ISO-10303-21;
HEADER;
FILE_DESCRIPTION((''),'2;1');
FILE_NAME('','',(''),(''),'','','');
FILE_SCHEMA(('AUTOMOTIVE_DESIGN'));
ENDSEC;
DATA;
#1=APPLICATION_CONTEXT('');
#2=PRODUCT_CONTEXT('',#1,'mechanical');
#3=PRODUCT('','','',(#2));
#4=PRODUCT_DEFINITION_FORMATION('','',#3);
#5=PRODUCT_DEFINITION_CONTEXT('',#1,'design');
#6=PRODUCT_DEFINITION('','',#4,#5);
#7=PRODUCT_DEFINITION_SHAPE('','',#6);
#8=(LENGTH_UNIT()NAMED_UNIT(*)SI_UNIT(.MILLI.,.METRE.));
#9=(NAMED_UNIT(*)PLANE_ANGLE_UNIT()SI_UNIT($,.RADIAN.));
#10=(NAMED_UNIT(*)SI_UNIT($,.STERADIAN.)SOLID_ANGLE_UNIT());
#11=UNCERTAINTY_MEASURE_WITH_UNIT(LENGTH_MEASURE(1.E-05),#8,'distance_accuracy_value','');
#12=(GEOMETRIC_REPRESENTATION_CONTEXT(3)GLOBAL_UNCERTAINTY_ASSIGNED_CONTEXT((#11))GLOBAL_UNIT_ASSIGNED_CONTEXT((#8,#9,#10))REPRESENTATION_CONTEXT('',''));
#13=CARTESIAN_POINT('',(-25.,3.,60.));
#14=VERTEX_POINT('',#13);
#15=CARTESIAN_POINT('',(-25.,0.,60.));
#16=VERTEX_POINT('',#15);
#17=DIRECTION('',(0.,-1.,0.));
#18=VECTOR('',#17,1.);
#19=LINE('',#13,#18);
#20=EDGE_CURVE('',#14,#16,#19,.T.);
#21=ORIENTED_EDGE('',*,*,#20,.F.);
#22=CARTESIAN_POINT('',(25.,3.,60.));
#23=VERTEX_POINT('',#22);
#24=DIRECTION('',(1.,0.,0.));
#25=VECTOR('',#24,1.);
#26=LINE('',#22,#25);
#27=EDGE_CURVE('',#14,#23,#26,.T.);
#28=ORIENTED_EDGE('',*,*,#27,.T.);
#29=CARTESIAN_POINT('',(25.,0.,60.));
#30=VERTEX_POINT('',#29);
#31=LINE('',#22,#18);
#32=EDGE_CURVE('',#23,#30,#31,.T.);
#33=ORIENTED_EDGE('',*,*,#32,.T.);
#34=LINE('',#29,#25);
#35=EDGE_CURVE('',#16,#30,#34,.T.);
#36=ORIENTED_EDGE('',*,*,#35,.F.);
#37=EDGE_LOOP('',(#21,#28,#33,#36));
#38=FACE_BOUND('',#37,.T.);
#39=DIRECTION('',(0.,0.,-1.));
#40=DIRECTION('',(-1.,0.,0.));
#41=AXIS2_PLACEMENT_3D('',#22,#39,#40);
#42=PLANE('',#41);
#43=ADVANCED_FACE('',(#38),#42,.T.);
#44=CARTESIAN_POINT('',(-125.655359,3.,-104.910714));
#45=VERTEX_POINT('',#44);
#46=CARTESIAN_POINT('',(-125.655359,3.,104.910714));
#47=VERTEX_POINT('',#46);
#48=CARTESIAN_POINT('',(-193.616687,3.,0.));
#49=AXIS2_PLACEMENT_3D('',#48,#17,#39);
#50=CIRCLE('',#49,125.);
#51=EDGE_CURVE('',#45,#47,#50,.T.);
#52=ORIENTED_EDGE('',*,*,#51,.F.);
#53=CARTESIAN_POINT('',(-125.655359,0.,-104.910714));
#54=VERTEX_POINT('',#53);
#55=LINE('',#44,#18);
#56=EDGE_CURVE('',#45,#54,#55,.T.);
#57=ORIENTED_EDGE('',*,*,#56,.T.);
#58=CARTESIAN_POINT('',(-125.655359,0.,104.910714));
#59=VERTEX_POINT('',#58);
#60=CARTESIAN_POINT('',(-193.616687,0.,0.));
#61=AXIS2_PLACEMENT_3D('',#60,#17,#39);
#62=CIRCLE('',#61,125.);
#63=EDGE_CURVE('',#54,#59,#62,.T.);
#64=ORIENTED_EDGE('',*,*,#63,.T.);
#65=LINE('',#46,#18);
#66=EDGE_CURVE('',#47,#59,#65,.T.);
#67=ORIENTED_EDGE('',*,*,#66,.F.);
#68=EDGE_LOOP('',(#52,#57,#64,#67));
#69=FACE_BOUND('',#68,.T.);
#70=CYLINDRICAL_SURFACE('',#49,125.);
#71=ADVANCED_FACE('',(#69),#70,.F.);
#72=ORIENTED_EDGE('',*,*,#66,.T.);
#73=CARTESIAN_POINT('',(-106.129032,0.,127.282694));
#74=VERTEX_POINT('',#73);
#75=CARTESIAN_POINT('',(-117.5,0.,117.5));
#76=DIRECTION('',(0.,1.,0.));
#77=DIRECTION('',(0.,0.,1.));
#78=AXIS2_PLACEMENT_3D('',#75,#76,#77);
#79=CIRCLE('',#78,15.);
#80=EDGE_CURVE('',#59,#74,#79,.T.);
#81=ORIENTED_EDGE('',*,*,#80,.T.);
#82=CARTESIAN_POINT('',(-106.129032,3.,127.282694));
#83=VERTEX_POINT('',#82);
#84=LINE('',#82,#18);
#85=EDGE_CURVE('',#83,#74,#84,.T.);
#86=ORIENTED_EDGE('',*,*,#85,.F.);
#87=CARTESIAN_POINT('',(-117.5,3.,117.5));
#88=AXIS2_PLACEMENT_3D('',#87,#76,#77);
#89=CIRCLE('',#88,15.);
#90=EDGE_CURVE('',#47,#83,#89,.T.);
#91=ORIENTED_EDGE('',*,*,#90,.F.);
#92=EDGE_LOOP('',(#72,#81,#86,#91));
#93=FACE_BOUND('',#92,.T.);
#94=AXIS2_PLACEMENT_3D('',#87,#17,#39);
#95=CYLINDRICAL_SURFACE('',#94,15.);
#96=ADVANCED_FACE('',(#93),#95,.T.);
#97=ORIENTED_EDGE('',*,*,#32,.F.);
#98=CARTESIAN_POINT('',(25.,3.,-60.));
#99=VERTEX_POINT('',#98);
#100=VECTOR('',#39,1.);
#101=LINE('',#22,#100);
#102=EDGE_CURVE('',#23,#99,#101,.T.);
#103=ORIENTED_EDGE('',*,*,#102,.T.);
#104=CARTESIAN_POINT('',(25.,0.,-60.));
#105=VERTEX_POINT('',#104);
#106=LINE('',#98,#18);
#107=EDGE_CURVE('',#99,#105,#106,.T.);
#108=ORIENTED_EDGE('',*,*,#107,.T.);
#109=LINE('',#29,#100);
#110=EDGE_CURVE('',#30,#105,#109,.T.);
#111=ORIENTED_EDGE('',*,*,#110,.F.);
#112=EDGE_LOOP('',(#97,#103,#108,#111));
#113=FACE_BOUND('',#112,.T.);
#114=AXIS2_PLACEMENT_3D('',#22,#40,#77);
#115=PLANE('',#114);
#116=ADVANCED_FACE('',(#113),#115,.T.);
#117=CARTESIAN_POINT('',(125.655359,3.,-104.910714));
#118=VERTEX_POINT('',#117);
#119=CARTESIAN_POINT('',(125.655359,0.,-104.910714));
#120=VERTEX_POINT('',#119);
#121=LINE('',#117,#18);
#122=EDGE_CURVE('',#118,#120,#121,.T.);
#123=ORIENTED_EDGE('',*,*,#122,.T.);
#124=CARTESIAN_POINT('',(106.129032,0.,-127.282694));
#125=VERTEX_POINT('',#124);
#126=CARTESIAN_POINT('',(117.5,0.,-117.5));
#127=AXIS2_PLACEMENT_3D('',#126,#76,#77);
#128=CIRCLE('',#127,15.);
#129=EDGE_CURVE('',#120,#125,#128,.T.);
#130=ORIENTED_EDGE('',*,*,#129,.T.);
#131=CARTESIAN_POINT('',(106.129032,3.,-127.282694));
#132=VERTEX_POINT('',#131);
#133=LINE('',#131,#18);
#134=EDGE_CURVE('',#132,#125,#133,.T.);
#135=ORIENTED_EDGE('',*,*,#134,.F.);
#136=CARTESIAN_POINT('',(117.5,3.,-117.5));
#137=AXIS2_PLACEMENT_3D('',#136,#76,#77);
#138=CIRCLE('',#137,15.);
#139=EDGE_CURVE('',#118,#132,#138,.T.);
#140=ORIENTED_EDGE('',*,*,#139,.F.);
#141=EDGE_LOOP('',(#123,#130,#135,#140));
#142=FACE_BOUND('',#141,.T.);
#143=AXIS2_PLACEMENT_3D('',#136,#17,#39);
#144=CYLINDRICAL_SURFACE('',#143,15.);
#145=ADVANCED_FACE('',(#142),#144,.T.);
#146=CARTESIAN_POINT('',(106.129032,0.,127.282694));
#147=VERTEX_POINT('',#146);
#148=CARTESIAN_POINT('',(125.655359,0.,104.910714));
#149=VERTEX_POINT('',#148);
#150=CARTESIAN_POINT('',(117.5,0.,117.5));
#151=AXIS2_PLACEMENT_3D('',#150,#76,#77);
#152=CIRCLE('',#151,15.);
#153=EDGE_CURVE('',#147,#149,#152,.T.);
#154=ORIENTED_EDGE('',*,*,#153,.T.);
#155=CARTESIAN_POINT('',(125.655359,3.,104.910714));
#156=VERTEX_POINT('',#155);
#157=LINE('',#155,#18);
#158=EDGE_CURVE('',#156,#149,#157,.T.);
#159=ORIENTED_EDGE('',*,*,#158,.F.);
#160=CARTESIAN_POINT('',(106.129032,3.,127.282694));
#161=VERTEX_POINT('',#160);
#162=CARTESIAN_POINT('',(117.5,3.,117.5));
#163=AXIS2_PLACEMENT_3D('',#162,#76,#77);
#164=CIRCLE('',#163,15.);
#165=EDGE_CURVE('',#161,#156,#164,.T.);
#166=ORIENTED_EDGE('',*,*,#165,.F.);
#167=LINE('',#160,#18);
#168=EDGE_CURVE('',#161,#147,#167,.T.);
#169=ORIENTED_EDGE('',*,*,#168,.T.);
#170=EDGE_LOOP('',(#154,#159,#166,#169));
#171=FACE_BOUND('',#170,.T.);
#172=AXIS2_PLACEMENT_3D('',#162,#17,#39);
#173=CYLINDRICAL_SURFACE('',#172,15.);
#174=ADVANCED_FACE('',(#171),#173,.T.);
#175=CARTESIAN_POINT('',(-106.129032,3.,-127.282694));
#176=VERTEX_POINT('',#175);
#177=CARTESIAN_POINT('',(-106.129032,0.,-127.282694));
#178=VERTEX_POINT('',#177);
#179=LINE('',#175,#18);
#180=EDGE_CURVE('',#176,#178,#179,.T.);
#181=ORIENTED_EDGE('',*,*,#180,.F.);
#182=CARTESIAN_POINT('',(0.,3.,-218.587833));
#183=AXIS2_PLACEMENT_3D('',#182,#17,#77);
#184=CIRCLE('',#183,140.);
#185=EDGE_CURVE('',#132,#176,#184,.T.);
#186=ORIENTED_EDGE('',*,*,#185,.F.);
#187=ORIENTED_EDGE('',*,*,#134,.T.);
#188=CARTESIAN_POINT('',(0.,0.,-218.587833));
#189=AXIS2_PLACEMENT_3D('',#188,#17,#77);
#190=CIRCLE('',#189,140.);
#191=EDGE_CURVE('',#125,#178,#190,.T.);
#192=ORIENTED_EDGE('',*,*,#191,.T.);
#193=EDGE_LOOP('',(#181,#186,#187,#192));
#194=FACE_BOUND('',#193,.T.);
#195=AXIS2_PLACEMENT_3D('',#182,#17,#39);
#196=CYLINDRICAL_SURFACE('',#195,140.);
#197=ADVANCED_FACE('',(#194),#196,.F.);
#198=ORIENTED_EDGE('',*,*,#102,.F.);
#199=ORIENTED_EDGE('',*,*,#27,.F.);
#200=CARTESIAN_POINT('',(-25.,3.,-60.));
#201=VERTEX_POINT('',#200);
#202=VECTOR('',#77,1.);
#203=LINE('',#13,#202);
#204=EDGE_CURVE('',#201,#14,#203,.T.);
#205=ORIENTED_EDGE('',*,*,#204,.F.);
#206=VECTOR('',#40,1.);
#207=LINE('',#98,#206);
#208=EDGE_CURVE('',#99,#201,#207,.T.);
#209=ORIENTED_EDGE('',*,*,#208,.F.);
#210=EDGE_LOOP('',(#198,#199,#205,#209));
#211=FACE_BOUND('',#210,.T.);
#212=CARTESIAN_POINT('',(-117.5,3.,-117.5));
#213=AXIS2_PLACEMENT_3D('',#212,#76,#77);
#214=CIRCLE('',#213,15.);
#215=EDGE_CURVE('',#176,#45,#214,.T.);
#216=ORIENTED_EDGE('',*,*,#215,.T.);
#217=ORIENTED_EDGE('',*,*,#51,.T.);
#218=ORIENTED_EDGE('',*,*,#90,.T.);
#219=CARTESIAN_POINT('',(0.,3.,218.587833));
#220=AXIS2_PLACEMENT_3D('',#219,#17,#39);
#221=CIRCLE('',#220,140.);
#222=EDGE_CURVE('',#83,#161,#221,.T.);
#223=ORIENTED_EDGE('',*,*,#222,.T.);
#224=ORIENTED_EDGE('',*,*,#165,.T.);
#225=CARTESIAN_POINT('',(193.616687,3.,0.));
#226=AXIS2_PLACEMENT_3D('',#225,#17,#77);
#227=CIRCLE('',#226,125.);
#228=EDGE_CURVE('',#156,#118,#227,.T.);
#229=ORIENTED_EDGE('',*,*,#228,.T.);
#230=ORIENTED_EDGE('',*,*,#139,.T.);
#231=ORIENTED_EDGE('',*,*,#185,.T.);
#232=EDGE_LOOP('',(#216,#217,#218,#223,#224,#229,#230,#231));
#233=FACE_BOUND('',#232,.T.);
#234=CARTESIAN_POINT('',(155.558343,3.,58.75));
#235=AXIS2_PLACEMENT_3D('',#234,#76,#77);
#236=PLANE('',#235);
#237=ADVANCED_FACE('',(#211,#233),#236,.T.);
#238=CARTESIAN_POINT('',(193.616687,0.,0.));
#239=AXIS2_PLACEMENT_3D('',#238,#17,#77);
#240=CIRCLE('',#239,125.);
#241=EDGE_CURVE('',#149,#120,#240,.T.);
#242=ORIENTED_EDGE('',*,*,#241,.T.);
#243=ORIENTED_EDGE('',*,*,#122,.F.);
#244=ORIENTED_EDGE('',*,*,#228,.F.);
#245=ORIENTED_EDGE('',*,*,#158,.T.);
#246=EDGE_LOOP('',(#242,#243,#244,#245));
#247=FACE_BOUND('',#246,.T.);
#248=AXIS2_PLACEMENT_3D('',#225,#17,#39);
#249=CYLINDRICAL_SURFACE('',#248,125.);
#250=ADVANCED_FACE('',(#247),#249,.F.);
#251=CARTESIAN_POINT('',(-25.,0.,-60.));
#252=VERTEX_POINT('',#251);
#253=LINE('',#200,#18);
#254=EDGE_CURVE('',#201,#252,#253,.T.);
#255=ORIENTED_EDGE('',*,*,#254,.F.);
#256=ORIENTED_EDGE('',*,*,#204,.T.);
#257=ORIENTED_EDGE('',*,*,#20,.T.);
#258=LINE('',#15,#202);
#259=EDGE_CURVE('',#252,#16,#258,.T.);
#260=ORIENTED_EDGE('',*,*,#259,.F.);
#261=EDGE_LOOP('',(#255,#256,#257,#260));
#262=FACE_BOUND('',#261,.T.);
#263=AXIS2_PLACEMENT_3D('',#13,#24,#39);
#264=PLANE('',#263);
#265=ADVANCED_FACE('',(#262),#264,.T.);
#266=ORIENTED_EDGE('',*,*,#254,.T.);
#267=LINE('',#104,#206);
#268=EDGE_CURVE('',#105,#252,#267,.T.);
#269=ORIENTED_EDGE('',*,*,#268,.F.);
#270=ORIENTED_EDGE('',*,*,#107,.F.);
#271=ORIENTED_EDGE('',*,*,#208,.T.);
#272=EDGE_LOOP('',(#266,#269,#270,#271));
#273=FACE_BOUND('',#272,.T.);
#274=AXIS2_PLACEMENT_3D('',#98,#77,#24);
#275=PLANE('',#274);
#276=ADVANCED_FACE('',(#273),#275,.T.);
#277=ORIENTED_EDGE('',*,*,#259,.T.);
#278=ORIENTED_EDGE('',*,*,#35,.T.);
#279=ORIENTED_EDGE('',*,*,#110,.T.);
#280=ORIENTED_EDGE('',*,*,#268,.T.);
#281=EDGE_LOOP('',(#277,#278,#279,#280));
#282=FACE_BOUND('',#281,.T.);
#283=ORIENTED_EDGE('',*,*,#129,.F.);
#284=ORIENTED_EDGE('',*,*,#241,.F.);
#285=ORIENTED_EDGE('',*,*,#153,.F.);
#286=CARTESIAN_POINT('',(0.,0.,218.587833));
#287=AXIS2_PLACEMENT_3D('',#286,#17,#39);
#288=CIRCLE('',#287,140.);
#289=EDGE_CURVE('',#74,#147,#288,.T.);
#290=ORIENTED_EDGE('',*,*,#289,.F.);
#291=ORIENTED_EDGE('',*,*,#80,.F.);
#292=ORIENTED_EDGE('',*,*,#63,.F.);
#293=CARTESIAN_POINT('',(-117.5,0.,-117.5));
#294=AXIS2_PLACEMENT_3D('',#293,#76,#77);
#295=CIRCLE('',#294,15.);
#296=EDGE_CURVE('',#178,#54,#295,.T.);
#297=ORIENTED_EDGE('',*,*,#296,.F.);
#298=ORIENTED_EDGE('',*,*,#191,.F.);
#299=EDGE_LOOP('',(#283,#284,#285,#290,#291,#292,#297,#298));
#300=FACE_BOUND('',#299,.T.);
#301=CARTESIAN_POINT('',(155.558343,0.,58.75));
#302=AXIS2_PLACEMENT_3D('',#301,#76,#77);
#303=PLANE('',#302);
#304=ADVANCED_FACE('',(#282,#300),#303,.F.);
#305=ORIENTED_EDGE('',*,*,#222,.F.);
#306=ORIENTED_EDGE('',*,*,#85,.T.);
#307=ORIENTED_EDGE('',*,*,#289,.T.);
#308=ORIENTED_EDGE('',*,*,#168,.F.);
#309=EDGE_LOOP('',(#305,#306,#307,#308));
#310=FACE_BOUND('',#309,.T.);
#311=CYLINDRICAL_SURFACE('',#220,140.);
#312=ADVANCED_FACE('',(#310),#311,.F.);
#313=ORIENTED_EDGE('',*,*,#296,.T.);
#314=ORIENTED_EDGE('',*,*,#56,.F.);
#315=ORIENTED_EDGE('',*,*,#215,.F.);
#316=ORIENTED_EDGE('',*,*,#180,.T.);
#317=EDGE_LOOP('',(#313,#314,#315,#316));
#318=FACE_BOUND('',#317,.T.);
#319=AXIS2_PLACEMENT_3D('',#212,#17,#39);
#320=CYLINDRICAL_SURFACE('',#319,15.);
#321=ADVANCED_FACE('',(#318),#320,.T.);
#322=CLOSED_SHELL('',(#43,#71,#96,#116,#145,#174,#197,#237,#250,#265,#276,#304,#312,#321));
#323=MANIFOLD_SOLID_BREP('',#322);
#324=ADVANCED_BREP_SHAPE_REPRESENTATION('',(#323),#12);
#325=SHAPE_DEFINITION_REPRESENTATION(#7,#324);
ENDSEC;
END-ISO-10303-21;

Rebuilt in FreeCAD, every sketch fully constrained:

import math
import FreeCAD as App
import Part
import Sketcher
from FreeCAD import Vector

doc = App.newDocument("Part")
params = doc.addObject("Spreadsheet::Sheet", "Params")
for row, (alias, value) in enumerate([
    ("sketch1_radius", "15 mm"),
    ("sketch1_radius2", "125 mm"),
    ("sketch1_radius3", "140 mm"),
    ("sketch1_width", "50 mm"),
    ("sketch1_height", "120 mm"),
    ("pad1_length", "3 mm"),
], start=1):
    params.set(f"A{row}", alias)
    params.set(f"B{row}", "=" + value)
    params.setAlias(f"B{row}", alias)

body = doc.addObject("PartDesign::Body", "Body")

sketch1 = doc.addObject("Sketcher::SketchObject", "Sketch")
body.addObject(sketch1)
sketch1.AttachmentSupport = (doc.XZ_Plane, [""])
sketch1.MapMode = "FlatFace"
sketch1.addGeometry([
    Part.ArcOfCircle(Part.Circle(Vector(-118, -118, 0), Vector(0, 0, 1), 15), math.radians(123), math.radians(319)),
    Part.ArcOfCircle(Part.Circle(Vector(-194, 0, 0), Vector(0, 0, 1), 125), math.radians(-57), math.radians(57)),
    Part.ArcOfCircle(Part.Circle(Vector(-118, 118, 0), Vector(0, 0, 1), 15), math.radians(41), math.radians(237)),
    Part.ArcOfCircle(Part.Circle(Vector(0, 219, 0), Vector(0, 0, 1), 140), math.radians(-139), math.radians(-41)),
    Part.ArcOfCircle(Part.Circle(Vector(118, 118, 0), Vector(0, 0, 1), 15), math.radians(-57), math.radians(139)),
    Part.ArcOfCircle(Part.Circle(Vector(194, 0, 0), Vector(0, 0, 1), 125), math.radians(123), math.radians(237)),
    Part.ArcOfCircle(Part.Circle(Vector(118, -118, 0), Vector(0, 0, 1), 15), math.radians(-139), math.radians(57)),
    Part.ArcOfCircle(Part.Circle(Vector(0, -219, 0), Vector(0, 0, 1), 140), math.radians(41), math.radians(139)),
    Part.LineSegment(Vector(25, 60, 0), Vector(-25, 60, 0)),
    Part.LineSegment(Vector(-25, 60, 0), Vector(-25, -60, 0)),
    Part.LineSegment(Vector(-25, -60, 0), Vector(25, -60, 0)),
    Part.LineSegment(Vector(25, -60, 0), Vector(25, 60, 0)),
], False)
sketch1.addConstraint([
    Sketcher.Constraint("Tangent", 0, 1, 1, 1),
    Sketcher.Constraint("Tangent", 1, 2, 2, 2),
    Sketcher.Constraint("Tangent", 2, 1, 3, 1),
    Sketcher.Constraint("Tangent", 3, 2, 4, 2),
    Sketcher.Constraint("Tangent", 4, 1, 5, 1),
    Sketcher.Constraint("Tangent", 5, 2, 6, 2),
    Sketcher.Constraint("Tangent", 6, 1, 7, 1),
    Sketcher.Constraint("Tangent", 7, 2, 0, 2),
    Sketcher.Constraint("Coincident", 8, 2, 9, 1),
    Sketcher.Constraint("Coincident", 9, 2, 10, 1),
    Sketcher.Constraint("Coincident", 10, 2, 11, 1),
    Sketcher.Constraint("Coincident", 11, 2, 8, 1),
    Sketcher.Constraint("Horizontal", 8),
    Sketcher.Constraint("Vertical", 9),
    Sketcher.Constraint("Horizontal", 10),
    Sketcher.Constraint("Vertical", 11),
    Sketcher.Constraint("Equal", 0, 2),
    Sketcher.Constraint("Equal", 2, 4),
    Sketcher.Constraint("Equal", 1, 5),
    Sketcher.Constraint("Equal", 4, 6),
    Sketcher.Constraint("Equal", 3, 7),
    Sketcher.Constraint("Symmetric", 0, 3, 4, 3, -1, 1),
    Sketcher.Constraint("Symmetric", 2, 3, 6, 3, -1, 1),
    Sketcher.Constraint("Symmetric", 8, 2, 10, 2, -1, 1),
    Sketcher.Constraint("Symmetric", 2, 3, 4, 3, -2),
    Sketcher.Constraint("Radius", 0, 15.0),
    Sketcher.Constraint("Radius", 1, 125.0),
    Sketcher.Constraint("Radius", 3, 140.0),
    Sketcher.Constraint("DistanceX", 8, 2, 8, 1, 50.0),
    Sketcher.Constraint("DistanceY", 9, 2, 9, 1, 120.0),
    Sketcher.Constraint("DistanceY", 0, 3, 2, 3, 235.0),
    Sketcher.Constraint("DistanceX", 2, 3, 4, 3, 235.0),
])
sketch1.setExpression("Constraints[25]", "Params.sketch1_radius")
sketch1.setExpression("Constraints[26]", "Params.sketch1_radius2")
sketch1.setExpression("Constraints[27]", "Params.sketch1_radius3")
sketch1.setExpression("Constraints[28]", "Params.sketch1_width")
sketch1.setExpression("Constraints[29]", "Params.sketch1_height")
pad1 = doc.addObject("PartDesign::Pad", "Pad")
body.addObject(pad1)
pad1.Profile = sketch1
pad1.setExpression("Length", "Params.pad1_length")
pad1.Reversed = True

doc.recompute()
